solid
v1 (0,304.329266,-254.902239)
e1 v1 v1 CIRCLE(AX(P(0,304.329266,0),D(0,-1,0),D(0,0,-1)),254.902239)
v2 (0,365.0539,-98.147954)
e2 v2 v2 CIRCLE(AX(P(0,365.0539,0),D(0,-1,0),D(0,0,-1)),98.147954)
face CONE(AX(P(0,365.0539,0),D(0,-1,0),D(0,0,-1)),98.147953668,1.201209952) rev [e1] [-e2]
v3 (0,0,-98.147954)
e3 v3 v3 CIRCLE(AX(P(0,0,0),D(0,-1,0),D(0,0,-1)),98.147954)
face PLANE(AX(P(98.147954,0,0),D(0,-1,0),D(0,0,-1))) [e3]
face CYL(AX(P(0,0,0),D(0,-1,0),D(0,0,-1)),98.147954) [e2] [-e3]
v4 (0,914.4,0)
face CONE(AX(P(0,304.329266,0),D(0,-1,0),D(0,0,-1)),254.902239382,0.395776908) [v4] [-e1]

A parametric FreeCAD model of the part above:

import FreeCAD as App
import Part
import Sketcher
from FreeCAD import Vector
Q = App.Units.Quantity


def add_polygon(sketch, points):
    """Adds a closed chain of lines whose ends are joined by coincident constraints."""
    first, n = sketch.GeometryCount, len(points)
    for a, b in zip(points, points[1:] + points[:1]):
        sketch.addGeometry(Part.LineSegment(App.Vector(*a, 0), App.Vector(*b, 0)), False)
    for i in range(n):
        sketch.addConstraint(Sketcher.Constraint("Coincident", first + i, 2, first + (i + 1) % n, 1))

doc = App.newDocument("Part")
params = doc.addObject("Spreadsheet::Sheet", "Params")
for row, (alias, value) in enumerate([
    ("sketch1_height", "36 in"),
    ("revolution_angle", "360 deg"),
], start=1):
    params.set(f"A{row}", alias)
    params.set(f"B{row}", "=" + value)
    params.setAlias(f"B{row}", alias)

body = doc.addObject("PartDesign::Body", "Body")

# Sketch on XY plane
sketch1 = body.newObject("Sketcher::SketchObject", "Sketch")
sketch1.AttachmentSupport = (doc.getObject("XY_Plane"), [""])
sketch1.MapMode = "FlatFace"
add_polygon(sketch1, [(0, 914), (0, 0), (98, 0), (98, 365), (255, 304)])  # lines 0-4
sketch1.addConstraint(Sketcher.Constraint("Vertical", 0))
sketch1.addConstraint(Sketcher.Constraint("Horizontal", 1))
sketch1.addConstraint(Sketcher.Constraint("Vertical", 2))
sketch1.addConstraint(Sketcher.Constraint("Coincident", 0, 2, -1, 1))
sketch1.addConstraint(Sketcher.Constraint("DistanceY", 0, 2, 0, 1, Q("36 in")))
sketch1.addConstraint(Sketcher.Constraint("DistanceY", 2, 1, 2, 2, 365.0539))
sketch1.addConstraint(Sketcher.Constraint("Distance", 4, 661.18186))
sketch1.addConstraint(Sketcher.Constraint("DistanceX", 1, 1, 1, 2, 98.147954))
sketch1.addConstraint(Sketcher.Constraint("DistanceX", -1, 1, 3, 2, 254.902239))
sketch1.setExpression("Constraints[9]", "Params.sketch1_height")
revolution = body.newObject("PartDesign::Revolution", "Revolution")
revolution.Profile = sketch1
revolution.ReferenceAxis = (sketch1, ["V_Axis"])
revolution.setExpression("Angle", "Params.revolution_angle")

doc.recompute()
